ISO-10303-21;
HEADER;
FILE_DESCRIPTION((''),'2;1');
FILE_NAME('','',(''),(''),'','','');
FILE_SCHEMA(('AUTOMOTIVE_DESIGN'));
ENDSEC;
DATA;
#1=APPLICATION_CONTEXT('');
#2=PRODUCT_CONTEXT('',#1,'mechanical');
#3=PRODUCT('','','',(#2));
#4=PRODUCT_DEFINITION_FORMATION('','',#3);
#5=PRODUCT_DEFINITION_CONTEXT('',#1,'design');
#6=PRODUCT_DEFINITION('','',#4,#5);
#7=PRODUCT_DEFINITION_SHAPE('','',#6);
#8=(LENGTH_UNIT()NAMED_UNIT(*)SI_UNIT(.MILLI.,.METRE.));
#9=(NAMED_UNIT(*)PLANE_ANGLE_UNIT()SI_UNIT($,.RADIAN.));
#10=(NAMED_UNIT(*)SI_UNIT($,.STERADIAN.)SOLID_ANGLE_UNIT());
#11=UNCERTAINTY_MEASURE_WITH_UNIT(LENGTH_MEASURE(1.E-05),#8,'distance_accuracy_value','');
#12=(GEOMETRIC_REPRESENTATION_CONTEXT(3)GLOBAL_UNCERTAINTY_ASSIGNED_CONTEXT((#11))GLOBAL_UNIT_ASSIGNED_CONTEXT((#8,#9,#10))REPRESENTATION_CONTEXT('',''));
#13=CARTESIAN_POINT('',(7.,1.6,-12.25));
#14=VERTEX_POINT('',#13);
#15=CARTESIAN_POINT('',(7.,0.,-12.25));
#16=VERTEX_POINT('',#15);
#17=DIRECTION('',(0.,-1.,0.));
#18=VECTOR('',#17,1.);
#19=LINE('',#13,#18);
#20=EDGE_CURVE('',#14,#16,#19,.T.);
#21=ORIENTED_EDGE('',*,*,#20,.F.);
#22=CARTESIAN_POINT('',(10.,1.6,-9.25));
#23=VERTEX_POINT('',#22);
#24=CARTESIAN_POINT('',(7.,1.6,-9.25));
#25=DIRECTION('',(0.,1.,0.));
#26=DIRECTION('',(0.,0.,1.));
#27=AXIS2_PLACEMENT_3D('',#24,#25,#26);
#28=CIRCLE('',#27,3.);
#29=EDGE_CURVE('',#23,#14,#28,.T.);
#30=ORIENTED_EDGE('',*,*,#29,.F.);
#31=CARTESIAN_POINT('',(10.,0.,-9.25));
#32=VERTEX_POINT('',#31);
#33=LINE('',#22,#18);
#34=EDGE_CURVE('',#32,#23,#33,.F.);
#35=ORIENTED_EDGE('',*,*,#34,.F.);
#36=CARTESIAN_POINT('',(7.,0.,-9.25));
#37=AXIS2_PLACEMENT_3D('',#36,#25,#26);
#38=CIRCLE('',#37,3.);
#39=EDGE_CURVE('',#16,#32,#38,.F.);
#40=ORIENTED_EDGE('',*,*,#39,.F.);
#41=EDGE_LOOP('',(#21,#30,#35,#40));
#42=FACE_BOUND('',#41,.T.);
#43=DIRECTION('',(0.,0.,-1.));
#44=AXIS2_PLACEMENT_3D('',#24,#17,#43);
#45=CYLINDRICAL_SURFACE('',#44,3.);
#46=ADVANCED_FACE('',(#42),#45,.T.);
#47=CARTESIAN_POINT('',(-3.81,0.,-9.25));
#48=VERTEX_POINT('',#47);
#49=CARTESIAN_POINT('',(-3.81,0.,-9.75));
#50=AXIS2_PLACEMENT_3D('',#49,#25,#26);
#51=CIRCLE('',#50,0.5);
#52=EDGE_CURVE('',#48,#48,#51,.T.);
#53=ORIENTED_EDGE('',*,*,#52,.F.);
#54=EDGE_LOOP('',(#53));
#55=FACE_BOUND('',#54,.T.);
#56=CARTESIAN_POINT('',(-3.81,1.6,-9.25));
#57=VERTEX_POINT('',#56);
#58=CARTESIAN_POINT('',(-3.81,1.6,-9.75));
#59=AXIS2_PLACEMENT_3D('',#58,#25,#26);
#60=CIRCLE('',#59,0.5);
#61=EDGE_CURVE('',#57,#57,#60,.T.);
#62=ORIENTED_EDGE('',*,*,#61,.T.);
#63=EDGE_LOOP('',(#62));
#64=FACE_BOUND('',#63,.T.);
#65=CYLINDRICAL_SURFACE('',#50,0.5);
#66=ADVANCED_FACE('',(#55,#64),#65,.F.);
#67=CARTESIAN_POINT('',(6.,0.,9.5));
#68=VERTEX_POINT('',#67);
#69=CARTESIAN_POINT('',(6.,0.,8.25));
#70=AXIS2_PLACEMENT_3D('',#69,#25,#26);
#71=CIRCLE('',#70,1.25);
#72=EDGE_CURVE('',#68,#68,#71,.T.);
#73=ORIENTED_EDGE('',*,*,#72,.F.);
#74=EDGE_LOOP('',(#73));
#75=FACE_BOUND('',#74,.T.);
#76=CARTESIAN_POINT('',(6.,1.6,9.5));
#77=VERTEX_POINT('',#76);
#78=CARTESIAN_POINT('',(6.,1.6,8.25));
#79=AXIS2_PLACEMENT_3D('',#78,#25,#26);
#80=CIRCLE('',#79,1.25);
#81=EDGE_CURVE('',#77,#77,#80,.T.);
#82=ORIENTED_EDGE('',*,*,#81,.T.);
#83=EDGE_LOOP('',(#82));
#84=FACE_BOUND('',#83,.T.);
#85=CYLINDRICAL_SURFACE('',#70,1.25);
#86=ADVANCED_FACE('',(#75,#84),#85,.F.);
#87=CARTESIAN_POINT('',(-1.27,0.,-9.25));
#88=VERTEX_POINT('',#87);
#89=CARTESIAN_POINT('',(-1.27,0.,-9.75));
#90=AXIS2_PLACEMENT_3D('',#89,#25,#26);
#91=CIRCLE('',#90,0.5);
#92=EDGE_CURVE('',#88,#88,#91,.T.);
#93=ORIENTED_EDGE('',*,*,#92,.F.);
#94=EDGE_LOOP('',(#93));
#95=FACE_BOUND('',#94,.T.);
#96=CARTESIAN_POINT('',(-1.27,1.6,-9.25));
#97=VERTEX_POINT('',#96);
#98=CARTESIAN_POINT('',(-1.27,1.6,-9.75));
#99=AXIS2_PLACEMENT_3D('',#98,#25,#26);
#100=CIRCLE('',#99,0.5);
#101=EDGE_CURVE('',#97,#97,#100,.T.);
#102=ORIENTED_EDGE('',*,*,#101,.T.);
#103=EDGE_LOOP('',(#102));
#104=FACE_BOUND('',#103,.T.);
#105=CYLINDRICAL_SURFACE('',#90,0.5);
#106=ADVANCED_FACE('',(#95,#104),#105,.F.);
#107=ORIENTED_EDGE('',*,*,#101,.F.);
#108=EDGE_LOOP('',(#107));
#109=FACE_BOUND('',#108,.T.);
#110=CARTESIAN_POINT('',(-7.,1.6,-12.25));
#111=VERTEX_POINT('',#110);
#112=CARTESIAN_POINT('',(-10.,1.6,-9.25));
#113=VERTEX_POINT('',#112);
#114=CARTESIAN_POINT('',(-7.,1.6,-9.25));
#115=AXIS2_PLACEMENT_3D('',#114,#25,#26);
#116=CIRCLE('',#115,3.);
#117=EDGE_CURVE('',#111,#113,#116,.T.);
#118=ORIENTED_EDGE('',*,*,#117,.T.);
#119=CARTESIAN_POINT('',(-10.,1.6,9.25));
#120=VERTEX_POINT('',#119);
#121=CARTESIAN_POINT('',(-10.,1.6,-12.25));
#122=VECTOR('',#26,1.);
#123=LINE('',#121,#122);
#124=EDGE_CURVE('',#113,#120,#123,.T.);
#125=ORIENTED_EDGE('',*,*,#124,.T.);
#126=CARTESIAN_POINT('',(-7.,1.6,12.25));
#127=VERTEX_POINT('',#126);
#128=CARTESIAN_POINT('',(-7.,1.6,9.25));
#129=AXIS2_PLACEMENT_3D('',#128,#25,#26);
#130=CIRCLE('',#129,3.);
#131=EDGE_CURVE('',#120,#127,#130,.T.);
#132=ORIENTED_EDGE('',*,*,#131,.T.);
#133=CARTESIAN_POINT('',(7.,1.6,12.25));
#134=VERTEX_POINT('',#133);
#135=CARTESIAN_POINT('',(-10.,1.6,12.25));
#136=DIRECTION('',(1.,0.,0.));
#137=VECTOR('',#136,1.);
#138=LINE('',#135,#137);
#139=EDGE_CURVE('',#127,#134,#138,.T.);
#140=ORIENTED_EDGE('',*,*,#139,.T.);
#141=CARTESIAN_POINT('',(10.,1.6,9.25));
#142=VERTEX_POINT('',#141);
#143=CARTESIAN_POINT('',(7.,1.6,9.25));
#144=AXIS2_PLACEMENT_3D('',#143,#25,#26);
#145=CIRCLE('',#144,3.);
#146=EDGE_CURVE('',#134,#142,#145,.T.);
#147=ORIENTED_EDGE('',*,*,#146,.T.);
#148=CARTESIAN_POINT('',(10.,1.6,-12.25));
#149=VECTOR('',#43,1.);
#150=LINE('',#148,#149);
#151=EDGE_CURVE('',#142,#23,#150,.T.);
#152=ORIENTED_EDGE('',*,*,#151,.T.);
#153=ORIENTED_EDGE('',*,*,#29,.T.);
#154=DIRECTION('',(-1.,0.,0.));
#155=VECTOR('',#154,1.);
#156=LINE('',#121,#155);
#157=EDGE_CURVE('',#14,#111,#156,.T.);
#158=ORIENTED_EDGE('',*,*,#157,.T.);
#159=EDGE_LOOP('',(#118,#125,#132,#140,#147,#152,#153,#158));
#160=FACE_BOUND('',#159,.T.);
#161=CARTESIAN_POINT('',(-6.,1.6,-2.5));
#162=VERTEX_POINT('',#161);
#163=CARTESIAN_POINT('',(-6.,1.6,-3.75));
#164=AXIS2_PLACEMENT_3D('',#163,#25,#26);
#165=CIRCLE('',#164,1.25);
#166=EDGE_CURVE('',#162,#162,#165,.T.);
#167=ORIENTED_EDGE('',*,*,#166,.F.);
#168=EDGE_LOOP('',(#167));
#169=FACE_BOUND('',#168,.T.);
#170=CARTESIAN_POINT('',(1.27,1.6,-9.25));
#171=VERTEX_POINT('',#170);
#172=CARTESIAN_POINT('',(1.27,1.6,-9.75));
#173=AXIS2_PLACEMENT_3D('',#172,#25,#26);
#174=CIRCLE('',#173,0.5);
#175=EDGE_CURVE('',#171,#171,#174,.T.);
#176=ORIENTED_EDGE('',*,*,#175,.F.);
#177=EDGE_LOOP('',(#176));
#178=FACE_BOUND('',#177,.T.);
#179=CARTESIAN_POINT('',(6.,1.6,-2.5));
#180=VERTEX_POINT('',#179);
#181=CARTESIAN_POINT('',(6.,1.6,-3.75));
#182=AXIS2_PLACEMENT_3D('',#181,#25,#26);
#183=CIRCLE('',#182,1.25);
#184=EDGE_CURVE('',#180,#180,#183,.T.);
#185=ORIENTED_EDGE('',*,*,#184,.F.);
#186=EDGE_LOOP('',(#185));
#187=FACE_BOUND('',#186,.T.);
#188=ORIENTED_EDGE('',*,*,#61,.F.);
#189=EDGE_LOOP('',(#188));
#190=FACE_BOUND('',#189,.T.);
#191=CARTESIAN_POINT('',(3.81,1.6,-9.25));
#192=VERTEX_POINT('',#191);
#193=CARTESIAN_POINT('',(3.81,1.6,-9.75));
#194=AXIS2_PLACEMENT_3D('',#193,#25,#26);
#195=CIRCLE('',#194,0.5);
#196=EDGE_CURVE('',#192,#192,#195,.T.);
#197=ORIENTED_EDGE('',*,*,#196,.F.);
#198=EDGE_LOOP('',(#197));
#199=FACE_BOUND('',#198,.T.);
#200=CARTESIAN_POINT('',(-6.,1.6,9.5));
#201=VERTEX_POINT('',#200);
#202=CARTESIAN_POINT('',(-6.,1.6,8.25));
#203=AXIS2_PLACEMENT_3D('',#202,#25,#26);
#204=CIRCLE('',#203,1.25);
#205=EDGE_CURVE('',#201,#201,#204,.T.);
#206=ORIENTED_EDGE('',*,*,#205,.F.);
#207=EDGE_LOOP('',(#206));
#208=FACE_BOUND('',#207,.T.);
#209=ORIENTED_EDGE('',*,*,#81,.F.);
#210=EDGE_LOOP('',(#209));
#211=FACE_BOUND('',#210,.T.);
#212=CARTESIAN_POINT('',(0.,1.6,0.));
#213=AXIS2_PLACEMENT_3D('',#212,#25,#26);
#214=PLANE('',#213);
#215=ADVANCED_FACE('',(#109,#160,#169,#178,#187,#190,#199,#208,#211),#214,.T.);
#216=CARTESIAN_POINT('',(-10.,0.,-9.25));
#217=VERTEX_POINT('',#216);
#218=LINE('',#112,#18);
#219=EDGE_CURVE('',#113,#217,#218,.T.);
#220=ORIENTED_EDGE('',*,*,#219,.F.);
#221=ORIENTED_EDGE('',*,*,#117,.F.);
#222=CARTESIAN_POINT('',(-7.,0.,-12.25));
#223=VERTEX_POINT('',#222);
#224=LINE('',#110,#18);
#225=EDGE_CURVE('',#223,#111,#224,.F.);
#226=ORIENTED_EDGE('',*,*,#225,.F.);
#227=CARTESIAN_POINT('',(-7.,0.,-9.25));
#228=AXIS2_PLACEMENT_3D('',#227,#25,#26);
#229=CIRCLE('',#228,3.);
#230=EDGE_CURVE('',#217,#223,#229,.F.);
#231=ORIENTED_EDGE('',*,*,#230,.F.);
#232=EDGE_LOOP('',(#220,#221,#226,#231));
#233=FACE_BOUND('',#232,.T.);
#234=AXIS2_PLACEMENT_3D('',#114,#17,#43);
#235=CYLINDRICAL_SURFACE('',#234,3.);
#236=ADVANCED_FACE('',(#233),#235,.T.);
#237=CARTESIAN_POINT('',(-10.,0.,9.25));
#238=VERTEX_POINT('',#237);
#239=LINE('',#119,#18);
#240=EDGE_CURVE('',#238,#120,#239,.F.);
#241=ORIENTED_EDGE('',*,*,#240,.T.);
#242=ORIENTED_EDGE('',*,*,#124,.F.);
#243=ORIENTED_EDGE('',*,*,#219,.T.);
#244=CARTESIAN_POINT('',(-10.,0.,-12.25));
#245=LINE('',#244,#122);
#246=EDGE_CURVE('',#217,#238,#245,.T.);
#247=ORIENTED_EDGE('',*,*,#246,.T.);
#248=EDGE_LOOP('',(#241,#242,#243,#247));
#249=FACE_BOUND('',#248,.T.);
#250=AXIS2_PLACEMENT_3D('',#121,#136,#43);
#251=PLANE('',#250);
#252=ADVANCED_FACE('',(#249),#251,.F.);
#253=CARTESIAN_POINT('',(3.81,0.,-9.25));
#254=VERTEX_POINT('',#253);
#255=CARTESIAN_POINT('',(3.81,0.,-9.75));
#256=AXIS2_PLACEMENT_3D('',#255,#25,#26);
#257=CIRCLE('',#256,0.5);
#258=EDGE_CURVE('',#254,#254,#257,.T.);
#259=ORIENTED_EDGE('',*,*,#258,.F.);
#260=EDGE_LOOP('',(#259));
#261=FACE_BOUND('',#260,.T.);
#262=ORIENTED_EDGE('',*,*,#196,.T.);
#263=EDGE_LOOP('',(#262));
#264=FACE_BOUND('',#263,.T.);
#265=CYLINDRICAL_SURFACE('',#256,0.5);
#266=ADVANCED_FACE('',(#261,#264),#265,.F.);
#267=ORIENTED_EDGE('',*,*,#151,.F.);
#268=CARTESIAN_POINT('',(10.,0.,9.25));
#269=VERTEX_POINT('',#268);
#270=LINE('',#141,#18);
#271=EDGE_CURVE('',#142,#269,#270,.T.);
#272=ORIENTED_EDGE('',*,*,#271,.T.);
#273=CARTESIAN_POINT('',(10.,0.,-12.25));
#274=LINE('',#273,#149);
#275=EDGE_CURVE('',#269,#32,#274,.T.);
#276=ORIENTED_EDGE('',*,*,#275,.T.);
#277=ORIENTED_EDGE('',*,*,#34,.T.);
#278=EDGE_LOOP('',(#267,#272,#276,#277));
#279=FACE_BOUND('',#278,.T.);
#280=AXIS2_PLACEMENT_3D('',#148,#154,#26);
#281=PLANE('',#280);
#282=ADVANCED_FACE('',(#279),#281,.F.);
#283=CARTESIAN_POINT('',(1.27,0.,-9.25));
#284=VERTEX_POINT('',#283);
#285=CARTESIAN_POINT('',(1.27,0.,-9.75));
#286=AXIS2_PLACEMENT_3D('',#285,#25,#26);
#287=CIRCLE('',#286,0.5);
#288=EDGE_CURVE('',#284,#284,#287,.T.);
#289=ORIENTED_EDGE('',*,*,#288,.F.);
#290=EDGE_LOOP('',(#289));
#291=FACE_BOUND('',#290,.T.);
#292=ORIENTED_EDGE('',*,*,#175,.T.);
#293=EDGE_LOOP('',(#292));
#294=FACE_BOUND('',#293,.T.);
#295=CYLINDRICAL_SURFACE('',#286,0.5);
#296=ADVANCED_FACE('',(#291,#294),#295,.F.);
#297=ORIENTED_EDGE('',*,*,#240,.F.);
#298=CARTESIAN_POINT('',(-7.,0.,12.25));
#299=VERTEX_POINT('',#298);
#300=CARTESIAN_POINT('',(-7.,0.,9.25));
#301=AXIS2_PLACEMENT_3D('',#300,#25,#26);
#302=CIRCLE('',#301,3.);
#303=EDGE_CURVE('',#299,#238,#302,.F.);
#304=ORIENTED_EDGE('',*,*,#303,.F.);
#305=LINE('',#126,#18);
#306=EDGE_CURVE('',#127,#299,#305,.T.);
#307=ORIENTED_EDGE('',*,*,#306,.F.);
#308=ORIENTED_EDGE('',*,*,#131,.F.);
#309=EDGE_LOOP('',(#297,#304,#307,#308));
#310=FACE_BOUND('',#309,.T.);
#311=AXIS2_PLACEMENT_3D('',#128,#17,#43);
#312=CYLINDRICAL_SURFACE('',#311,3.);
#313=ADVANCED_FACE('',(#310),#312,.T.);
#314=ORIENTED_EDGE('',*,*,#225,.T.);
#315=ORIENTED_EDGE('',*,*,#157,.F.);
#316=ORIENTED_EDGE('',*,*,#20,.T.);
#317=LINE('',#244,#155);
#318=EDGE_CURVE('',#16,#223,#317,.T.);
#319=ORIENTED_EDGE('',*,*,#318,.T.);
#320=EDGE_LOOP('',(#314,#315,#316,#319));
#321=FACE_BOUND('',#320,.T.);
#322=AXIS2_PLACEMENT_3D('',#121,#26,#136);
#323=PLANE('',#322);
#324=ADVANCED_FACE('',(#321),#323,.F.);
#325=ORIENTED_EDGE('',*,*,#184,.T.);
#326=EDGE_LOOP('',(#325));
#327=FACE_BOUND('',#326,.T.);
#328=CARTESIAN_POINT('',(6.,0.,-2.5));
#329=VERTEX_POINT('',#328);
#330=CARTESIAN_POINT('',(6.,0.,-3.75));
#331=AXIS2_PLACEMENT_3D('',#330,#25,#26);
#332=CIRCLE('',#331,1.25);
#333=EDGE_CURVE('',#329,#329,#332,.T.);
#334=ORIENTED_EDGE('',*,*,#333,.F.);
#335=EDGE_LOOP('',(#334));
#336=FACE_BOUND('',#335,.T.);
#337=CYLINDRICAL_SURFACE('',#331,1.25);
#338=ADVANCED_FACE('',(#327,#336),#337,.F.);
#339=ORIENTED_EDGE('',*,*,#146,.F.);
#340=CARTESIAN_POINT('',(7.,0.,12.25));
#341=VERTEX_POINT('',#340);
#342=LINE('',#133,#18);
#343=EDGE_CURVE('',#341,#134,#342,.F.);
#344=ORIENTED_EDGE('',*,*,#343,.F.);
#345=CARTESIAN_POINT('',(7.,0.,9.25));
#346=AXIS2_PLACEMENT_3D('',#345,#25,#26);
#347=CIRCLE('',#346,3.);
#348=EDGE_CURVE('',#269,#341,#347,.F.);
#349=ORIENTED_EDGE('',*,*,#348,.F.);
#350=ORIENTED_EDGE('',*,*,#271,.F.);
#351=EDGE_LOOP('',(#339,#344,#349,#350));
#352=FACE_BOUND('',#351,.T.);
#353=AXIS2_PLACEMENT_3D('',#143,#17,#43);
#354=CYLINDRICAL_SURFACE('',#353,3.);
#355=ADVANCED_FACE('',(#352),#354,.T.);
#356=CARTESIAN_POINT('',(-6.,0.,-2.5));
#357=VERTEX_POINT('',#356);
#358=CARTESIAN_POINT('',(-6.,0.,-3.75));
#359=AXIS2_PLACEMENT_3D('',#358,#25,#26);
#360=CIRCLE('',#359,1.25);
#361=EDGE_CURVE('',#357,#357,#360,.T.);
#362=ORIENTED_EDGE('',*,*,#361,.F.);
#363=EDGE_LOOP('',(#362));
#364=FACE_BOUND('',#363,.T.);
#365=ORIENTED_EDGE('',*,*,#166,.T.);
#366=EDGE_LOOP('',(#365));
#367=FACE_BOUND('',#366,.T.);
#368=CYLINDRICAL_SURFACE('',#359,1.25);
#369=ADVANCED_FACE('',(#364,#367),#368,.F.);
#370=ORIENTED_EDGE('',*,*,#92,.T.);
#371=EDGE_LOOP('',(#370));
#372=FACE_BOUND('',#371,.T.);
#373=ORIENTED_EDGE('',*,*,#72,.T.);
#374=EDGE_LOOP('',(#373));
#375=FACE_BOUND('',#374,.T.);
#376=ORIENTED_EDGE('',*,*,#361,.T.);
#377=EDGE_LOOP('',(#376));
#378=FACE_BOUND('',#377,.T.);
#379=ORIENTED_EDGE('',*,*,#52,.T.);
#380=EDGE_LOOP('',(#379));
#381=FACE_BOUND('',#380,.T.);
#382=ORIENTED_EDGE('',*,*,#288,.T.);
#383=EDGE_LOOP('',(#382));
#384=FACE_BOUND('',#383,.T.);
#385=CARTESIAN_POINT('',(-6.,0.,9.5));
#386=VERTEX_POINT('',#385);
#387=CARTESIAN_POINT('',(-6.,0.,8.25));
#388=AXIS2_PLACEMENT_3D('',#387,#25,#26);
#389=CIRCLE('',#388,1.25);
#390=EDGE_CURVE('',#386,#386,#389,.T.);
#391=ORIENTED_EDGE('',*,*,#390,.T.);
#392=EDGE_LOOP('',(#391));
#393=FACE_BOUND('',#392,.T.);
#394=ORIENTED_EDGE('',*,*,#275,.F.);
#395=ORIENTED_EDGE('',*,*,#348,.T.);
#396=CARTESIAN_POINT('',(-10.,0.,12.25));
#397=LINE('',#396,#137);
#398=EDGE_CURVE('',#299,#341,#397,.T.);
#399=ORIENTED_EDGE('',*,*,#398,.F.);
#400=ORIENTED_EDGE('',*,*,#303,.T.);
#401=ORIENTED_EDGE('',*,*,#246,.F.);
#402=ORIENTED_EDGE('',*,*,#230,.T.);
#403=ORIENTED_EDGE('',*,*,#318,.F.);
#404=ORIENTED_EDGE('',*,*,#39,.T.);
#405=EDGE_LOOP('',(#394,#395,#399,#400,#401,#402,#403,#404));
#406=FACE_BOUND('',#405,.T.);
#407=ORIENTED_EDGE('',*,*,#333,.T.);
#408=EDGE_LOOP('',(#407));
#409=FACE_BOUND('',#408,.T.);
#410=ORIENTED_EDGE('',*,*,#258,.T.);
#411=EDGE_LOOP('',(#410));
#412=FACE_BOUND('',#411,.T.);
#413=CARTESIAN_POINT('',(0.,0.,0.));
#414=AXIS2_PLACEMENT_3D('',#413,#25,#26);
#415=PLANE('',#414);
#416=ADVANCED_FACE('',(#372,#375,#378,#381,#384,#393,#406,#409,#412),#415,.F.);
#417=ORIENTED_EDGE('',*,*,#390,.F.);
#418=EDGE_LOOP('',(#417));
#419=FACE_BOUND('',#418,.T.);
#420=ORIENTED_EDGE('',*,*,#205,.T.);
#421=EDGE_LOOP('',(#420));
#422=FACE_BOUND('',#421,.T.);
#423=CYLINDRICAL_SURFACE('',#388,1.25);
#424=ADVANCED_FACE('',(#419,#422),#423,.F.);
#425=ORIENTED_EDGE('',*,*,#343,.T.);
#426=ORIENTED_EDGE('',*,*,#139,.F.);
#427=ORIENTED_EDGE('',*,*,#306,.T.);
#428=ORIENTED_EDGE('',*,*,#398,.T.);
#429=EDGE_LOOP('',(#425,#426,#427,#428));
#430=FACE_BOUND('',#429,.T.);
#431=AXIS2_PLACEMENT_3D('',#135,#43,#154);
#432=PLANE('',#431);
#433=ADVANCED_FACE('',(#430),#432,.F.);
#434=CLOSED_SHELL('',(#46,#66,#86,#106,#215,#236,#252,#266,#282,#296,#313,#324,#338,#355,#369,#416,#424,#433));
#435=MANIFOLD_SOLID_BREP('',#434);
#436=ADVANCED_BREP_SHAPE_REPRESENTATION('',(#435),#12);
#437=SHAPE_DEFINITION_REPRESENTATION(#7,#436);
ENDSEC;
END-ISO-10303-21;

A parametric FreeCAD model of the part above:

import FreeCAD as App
import Part
import Sketcher

V = App.Vector
Q = App.Units.Quantity


def edges_at(feature, points):
    """Names of the edges that pass closest to the given points."""
    edges = feature.Shape.Edges
    near = lambda p: min(range(len(edges)), key=lambda i: edges[i].distToShape(Part.Vertex(*p))[0])
    return sorted({f"Edge{near(p) + 1}" for p in points})

doc = App.newDocument("Part")
params = doc.addObject("Spreadsheet::Sheet", "Params")
for row, (alias, value) in enumerate([
    ("sketch1_width", "20 mm"),
    ("sketch1_height", "24.5 mm"),
    ("pad1_length", "1.6 mm"),
    ("sketch2_diameter", "1 mm"),
    ("sketch2_diameter2", "2.5 mm"),
    ("fillet_radius", "3 mm"),
], start=1):
    params.set(f"A{row}", alias)
    params.set(f"B{row}", "=" + value)
    params.setAlias(f"B{row}", alias)

body = doc.addObject("PartDesign::Body", "Body")

# Sketch on XZ plane
sketch1 = doc.addObject("Sketcher::SketchObject", "Sketch")
body.addObject(sketch1)
sketch1.AttachmentSupport = (doc.XZ_Plane, [""])
sketch1.MapMode = "FlatFace"
sketch1.addGeometry([
    Part.LineSegment(V(-10, -12, 0), V(-10, 12, 0)),
    Part.LineSegment(V(-10, 12, 0), V(10, 12, 0)),
    Part.LineSegment(V(10, 12, 0), V(10, -12, 0)),
    Part.LineSegment(V(10, -12, 0), V(-10, -12, 0)),
], False)
sketch1.addConstraint([
    Sketcher.Constraint("Coincident", 0, 2, 1, 1),
    Sketcher.Constraint("Coincident", 1, 2, 2, 1),
    Sketcher.Constraint("Coincident", 2, 2, 3, 1),
    Sketcher.Constraint("Coincident", 3, 2, 0, 1),
    Sketcher.Constraint("Vertical", 0),
    Sketcher.Constraint("Horizontal", 1),
    Sketcher.Constraint("Vertical", 2),
    Sketcher.Constraint("Horizontal", 3),
    Sketcher.Constraint("Symmetric", 0, 2, 2, 2, -1, 1),
    Sketcher.Constraint("DistanceX", 1, 1, 1, 2, Q("20 mm")),
    Sketcher.Constraint("DistanceY", 0, 1, 0, 2, Q("24.5 mm")),
])
sketch1.setExpression("Constraints[9]", "Params.sketch1_width")
sketch1.setExpression("Constraints[10]", "Params.sketch1_height")
pad1 = doc.addObject("PartDesign::Pad", "Pad")
body.addObject(pad1)
pad1.Profile = sketch1
pad1.setExpression("Length", "Params.pad1_length")
pad1.Reversed = True

# Sketch on XZ plane
sketch2 = doc.addObject("Sketcher::SketchObject", "Sketch001")
body.addObject(sketch2)
sketch2.AttachmentSupport = (doc.XZ_Plane, [""])
sketch2.MapMode = "FlatFace"
sketch2.AttachmentOffset = App.Placement(V(0, 0, -1.6), App.Rotation())
sketch2.addGeometry([
    Part.Circle(V(-6, 8.2, 0), V(0, 0, 1), 1.2),  # 0
    Part.Circle(V(6, 8.2, 0), V(0, 0, 1), 1.2),  # 1
    Part.Circle(V(6, -3.8, 0), V(0, 0, 1), 1.2),  # 2
    Part.Circle(V(-6, -3.8, 0), V(0, 0, 1), 1.2),  # 3
    Part.Circle(V(-3.8, -9.8, 0), V(0, 0, 1), 0.5),  # 4
    Part.Circle(V(-1.3, -9.8, 0), V(0, 0, 1), 0.5),  # 5
    Part.Circle(V(1.3, -9.8, 0), V(0, 0, 1), 0.5),  # 6
    Part.Circle(V(3.8, -9.8, 0), V(0, 0, 1), 0.5),  # 7
], False)
sketch2.addConstraint([
    Sketcher.Constraint("Equal", 0, 1),
    Sketcher.Constraint("Equal", 1, 2),
    Sketcher.Constraint("Equal", 2, 3),
    Sketcher.Constraint("Equal", 4, 5),
    Sketcher.Constraint("Equal", 5, 6),
    Sketcher.Constraint("Equal", 6, 7),
    Sketcher.Constraint("Symmetric", 0, 3, 1, 3, -2),
    Sketcher.Constraint("Symmetric", 2, 3, 3, 3, -2),
    Sketcher.Constraint("Symmetric", 5, 3, 6, 3, -2),
    Sketcher.Constraint("Symmetric", 4, 3, 7, 3, -2),
    Sketcher.Constraint("Horizontal", 4, 3, 5, 3),
    Sketcher.Constraint("Vertical", 1, 3, 2, 3),
    Sketcher.Constraint("Diameter", 4, Q("1 mm")),
    Sketcher.Constraint("Diameter", 0, Q("2.5 mm")),
    Sketcher.Constraint("DistanceX", 0, 3, -1, 1, Q("6 mm")),
    Sketcher.Constraint("DistanceY", 2, 3, 1, 3, Q("12 mm")),
    Sketcher.Constraint("DistanceY", 4, 3, 3, 3, Q("6 mm")),
    Sketcher.Constraint("DistanceY", -1, 1, 0, 3, Q("8.25 mm")),
    Sketcher.Constraint("DistanceX", 4, 3, -1, 1, Q("3.81 mm")),
    Sketcher.Constraint("DistanceX", 5, 3, -1, 1, Q("1.27 mm")),
])
sketch2.setExpression("Constraints[12]", "Params.sketch2_diameter")
sketch2.setExpression("Constraints[13]", "Params.sketch2_diameter2")
pocket1 = doc.addObject("PartDesign::Pocket", "Pocket")
body.addObject(pocket1)
pocket1.Profile = sketch2
pocket1.Type = "ThroughAll"
pocket1.Midplane = True
doc.recompute()

fillet = doc.addObject("PartDesign::Fillet", "Fillet")
body.addObject(fillet)
fillet.Base = (pocket1, edges_at(pocket1, [
    (10, 0.8, 12.25),
    (-10, 0.8, 12.25),
    (-10, 0.8, -12.25),
    (10, 0.8, -12.25),
]))
fillet.setExpression("Radius", "Params.fillet_radius")

doc.recompute()
